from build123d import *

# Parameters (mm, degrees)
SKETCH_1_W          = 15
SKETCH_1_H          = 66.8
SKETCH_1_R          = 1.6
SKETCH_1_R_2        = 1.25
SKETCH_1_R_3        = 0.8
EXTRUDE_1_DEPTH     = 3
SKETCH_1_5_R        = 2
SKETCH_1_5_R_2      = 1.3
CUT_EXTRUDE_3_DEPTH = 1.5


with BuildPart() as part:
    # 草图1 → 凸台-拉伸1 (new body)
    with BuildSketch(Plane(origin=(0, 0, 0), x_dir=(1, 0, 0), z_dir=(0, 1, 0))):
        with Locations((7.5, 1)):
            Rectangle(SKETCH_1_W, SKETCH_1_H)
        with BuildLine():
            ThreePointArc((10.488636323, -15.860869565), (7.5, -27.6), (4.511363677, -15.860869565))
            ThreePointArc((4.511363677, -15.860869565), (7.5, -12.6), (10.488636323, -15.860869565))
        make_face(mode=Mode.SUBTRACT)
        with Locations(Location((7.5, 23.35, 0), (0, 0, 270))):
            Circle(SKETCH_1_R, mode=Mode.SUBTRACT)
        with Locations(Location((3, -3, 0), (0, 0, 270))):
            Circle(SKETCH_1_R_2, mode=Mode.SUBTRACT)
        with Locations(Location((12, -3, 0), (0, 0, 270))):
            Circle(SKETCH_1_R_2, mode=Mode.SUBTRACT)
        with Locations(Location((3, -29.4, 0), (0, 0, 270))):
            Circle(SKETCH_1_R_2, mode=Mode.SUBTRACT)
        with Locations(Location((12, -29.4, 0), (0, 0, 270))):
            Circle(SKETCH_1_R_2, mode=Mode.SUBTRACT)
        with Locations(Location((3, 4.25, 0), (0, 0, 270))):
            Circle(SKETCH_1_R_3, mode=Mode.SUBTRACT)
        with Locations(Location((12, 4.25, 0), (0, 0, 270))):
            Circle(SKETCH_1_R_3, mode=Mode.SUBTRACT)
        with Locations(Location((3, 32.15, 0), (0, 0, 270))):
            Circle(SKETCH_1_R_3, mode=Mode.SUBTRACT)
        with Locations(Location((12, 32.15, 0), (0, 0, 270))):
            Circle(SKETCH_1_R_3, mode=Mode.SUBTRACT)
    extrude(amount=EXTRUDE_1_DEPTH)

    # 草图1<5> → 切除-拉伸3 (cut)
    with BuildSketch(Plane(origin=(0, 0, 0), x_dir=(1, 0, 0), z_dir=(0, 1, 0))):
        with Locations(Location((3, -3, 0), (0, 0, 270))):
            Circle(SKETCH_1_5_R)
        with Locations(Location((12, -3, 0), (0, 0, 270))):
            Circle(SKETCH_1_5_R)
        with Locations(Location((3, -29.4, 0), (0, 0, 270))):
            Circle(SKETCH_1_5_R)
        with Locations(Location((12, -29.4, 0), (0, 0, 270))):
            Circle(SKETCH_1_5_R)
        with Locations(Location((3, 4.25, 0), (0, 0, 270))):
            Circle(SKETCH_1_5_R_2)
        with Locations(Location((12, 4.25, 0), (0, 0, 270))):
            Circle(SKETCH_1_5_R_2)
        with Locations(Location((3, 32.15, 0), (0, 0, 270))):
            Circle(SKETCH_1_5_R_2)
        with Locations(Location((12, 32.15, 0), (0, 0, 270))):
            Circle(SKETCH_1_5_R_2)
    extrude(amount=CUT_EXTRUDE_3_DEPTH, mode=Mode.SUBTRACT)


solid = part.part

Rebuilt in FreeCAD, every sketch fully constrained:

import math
import FreeCAD as App
import Part
import Sketcher

V = App.Vector

doc = App.newDocument("Part")
params = doc.addObject("Spreadsheet::Sheet", "Params")
for row, (alias, value) in enumerate([
    ("sketch1_radius", "3 mm"),
    ("sketch1_diameter", "2.5 mm"),
    ("sketch1_diameter2", "1.6 mm"),
    ("sketch1_diameter3", "3.2 mm"),
    ("sketch1_width", "15 mm"),
    ("pad1_length", "3 mm"),
    ("sketch2_diameter", "4 mm"),
    ("sketch2_diameter2", "2.6 mm"),
    ("pocket1_length", "1.5 mm"),
], start=1):
    params.set(f"A{row}", alias)
    params.set(f"B{row}", "=" + value)
    params.setAlias(f"B{row}", alias)

body = doc.addObject("PartDesign::Body", "Body")

# Sketch on XZ plane
sketch1 = body.newObject("Sketcher::SketchObject", "Sketch")
sketch1.AttachmentSupport = (doc.getObject("XZ_Plane"), [""])
sketch1.MapMode = "FlatFace"
sketch1.addGeometry(Part.LineSegment(V(0, -34.4, 0), V(0, 32.4, 0)), False)
sketch1.addGeometry(Part.LineSegment(V(0, 32.4, 0), V(15, 32.4, 0)), False)
sketch1.addGeometry(Part.LineSegment(V(15, 32.4, 0), V(15, -34.4, 0)), False)
sketch1.addGeometry(Part.LineSegment(V(15, -34.4, 0), V(0, -34.4, 0)), False)
sketch1.addGeometry(Part.Circle(V(3, 29.4, 0), V(0, 0, 1), 1.2), False)
sketch1.addGeometry(Part.Circle(V(3, 3, 0), V(0, 0, 1), 1.2), False)
sketch1.addGeometry(Part.ArcOfCircle(Part.Circle(V(7.5, 15.6, 0), V(0, 0, 1), 3), math.radians(175), math.radians(365)), False)
sketch1.addGeometry(Part.ArcOfCircle(Part.Circle(V(7.5, 21.4, 0), V(0, 0, 1), 6.2), math.radians(-61), math.radians(241)), False)
sketch1.addGeometry(Part.Circle(V(12, 29.4, 0), V(0, 0, 1), 1.2), False)
sketch1.addGeometry(Part.Circle(V(12, 3, 0), V(0, 0, 1), 1.2), False)
sketch1.addGeometry(Part.Circle(V(3, -4.2, 0), V(0, 0, 1), 0.8), False)
sketch1.addGeometry(Part.Circle(V(3, -32.1, 0), V(0, 0, 1), 0.8), False)
sketch1.addGeometry(Part.Circle(V(12, -4.2, 0), V(0, 0, 1), 0.8), False)
sketch1.addGeometry(Part.Circle(V(7.5, -23.4, 0), V(0, 0, 1), 1.6), False)
sketch1.addGeometry(Part.Circle(V(12, -32.1, 0), V(0, 0, 1), 0.8), False)
sketch1.addConstraint(Sketcher.Constraint("Coincident", 0, 2, 1, 1))
sketch1.addConstraint(Sketcher.Constraint("Coincident", 1, 2, 2, 1))
sketch1.addConstraint(Sketcher.Constraint("Coincident", 2, 2, 3, 1))
sketch1.addConstraint(Sketcher.Constraint("Coincident", 3, 2, 0, 1))
sketch1.addConstraint(Sketcher.Constraint("Coincident", 6, 1, 7, 2))
sketch1.addConstraint(Sketcher.Constraint("Coincident", 7, 1, 6, 2))
sketch1.addConstraint(Sketcher.Constraint("Vertical", 0))
sketch1.addConstraint(Sketcher.Constraint("Horizontal", 1))
sketch1.addConstraint(Sketcher.Constraint("Vertical", 2))
sketch1.addConstraint(Sketcher.Constraint("Horizontal", 3))
sketch1.addConstraint(Sketcher.Constraint("Equal", 4, 5))
sketch1.addConstraint(Sketcher.Constraint("Equal", 5, 8))
sketch1.addConstraint(Sketcher.Constraint("Equal", 8, 9))
sketch1.addConstraint(Sketcher.Constraint("Equal", 10, 11))
sketch1.addConstraint(Sketcher.Constraint("Equal", 11, 12))
sketch1.addConstraint(Sketcher.Constraint("Equal", 12, 14))
sketch1.addConstraint(Sketcher.Constraint("PointOnObject", 0, 2, -2))
sketch1.addConstraint(Sketcher.Constraint("Horizontal", 4, 3, 8, 3))
sketch1.addConstraint(Sketcher.Constraint("Horizontal", 5, 3, 9, 3))
sketch1.addConstraint(Sketcher.Constraint("Horizontal", 10, 3, 12, 3))
sketch1.addConstraint(Sketcher.Constraint("Horizontal", 11, 3, 14, 3))
sketch1.addConstraint(Sketcher.Constraint("Horizontal", 6, 1, 7, 1))
sketch1.addConstraint(Sketcher.Constraint("Vertical", 4, 3, 5, 3))
sketch1.addConstraint(Sketcher.Constraint("Vertical", 8, 3, 9, 3))
sketch1.addConstraint(Sketcher.Constraint("Vertical", 5, 3, 10, 3))
sketch1.addConstraint(Sketcher.Constraint("Vertical", 10, 3, 11, 3))
sketch1.addConstraint(Sketcher.Constraint("Vertical", 9, 3, 12, 3))
sketch1.addConstraint(Sketcher.Constraint("Vertical", 7, 3, 13, 3))
sketch1.addConstraint(Sketcher.Constraint("Vertical", 12, 3, 14, 3))
sketch1.addConstraint(Sketcher.Constraint("Radius", 6, 3.0))
sketch1.addConstraint(Sketcher.Constraint("Diameter", 4, 2.5))
sketch1.addConstraint(Sketcher.Constraint("Diameter", 10, 1.6))
sketch1.addConstraint(Sketcher.Constraint("Diameter", 13, 3.2))
sketch1.addConstraint(Sketcher.Constraint("DistanceX", 1, 1, 1, 2, 15.0))
sketch1.addConstraint(Sketcher.Constraint("Radius", 7, 6.25))
sketch1.addConstraint(Sketcher.Constraint("DistanceY", 0, 1, 0, 2, 66.8))
sketch1.addConstraint(Sketcher.Constraint("DistanceX", -1, 1, 4, 3, 3.0))
sketch1.addConstraint(Sketcher.Constraint("DistanceY", -1, 1, 5, 3, 3.0))
sketch1.addConstraint(Sketcher.Constraint("DistanceX", -1, 1, 8, 3, 12.0))
sketch1.addConstraint(Sketcher.Constraint("DistanceY", 4, 3, 0, 2, 3.0))
sketch1.addConstraint(Sketcher.Constraint("DistanceY", -1, 1, 4, 3, 29.4))
sketch1.addConstraint(Sketcher.Constraint("DistanceX", -1, 1, 6, 3, 7.5))
sketch1.addConstraint(Sketcher.Constraint("DistanceY", -1, 1, 6, 3, 15.6))
sketch1.addConstraint(Sketcher.Constraint("DistanceY", 10, 3, 7, 3, 25.6))
sketch1.addConstraint(Sketcher.Constraint("DistanceY", 11, 3, 10, 3, 27.9))
sketch1.addConstraint(Sketcher.Constraint("DistanceY", 11, 3, 13, 3, 8.8))
sketch1.addConstraint(Sketcher.Constraint("DistanceY", -1, 1, 7, 3, 21.35))
sketch1.setExpression("Constraints[29]", "Params.sketch1_radius")
sketch1.setExpression("Constraints[30]", "Params.sketch1_diameter")
sketch1.setExpression("Constraints[31]", "Params.sketch1_diameter2")
sketch1.setExpression("Constraints[32]", "Params.sketch1_diameter3")
sketch1.setExpression("Constraints[33]", "Params.sketch1_width")
pad1 = body.newObject("PartDesign::Pad", "Pad")
pad1.Profile = sketch1
pad1.setExpression("Length", "Params.pad1_length")
pad1.Reversed = True

# Sketch on XZ plane
sketch2 = body.newObject("Sketcher::SketchObject", "Sketch001")
sketch2.AttachmentSupport = (doc.getObject("XZ_Plane"), [""])
sketch2.MapMode = "FlatFace"
sketch2.addGeometry(Part.Circle(V(3, 3, 0), V(0, 0, 1), 2), False)
sketch2.addGeometry(Part.Circle(V(12, 3, 0), V(0, 0, 1), 2), False)
sketch2.addGeometry(Part.Circle(V(3, 29.4, 0), V(0, 0, 1), 2), False)
sketch2.addGeometry(Part.Circle(V(12, 29.4, 0), V(0, 0, 1), 2), False)
sketch2.addGeometry(Part.Circle(V(3, -4.2, 0), V(0, 0, 1), 1.3), False)
sketch2.addGeometry(Part.Circle(V(12, -4.2, 0), V(0, 0, 1), 1.3), False)
sketch2.addGeometry(Part.Circle(V(3, -32.1, 0), V(0, 0, 1), 1.3), False)
sketch2.addGeometry(Part.Circle(V(12, -32.1, 0), V(0, 0, 1), 1.3), False)
sketch2.addConstraint(Sketcher.Constraint("Equal", 0, 1))
sketch2.addConstraint(Sketcher.Constraint("Equal", 1, 2))
sketch2.addConstraint(Sketcher.Constraint("Equal", 2, 3))
sketch2.addConstraint(Sketcher.Constraint("Equal", 4, 5))
sketch2.addConstraint(Sketcher.Constraint("Equal", 5, 6))
sketch2.addConstraint(Sketcher.Constraint("Equal", 6, 7))
sketch2.addConstraint(Sketcher.Constraint("Horizontal", 0, 3, 1, 3))
sketch2.addConstraint(Sketcher.Constraint("Horizontal", 2, 3, 3, 3))
sketch2.addConstraint(Sketcher.Constraint("Horizontal", 4, 3, 5, 3))
sketch2.addConstraint(Sketcher.Constraint("Horizontal", 6, 3, 7, 3))
sketch2.addConstraint(Sketcher.Constraint("Vertical", 0, 3, 2, 3))
sketch2.addConstraint(Sketcher.Constraint("Vertical", 1, 3, 3, 3))
sketch2.addConstraint(Sketcher.Constraint("Vertical", 2, 3, 4, 3))
sketch2.addConstraint(Sketcher.Constraint("Vertical", 3, 3, 5, 3))
sketch2.addConstraint(Sketcher.Constraint("Vertical", 4, 3, 6, 3))
sketch2.addConstraint(Sketcher.Constraint("Vertical", 5, 3, 7, 3))
sketch2.addConstraint(Sketcher.Constraint("Diameter", 0, 4.0))
sketch2.addConstraint(Sketcher.Constraint("Diameter", 4, 2.6))
sketch2.addConstraint(Sketcher.Constraint("DistanceX", -1, 1, 0, 3, 3.0))
sketch2.addConstraint(Sketcher.Constraint("DistanceY", -1, 1, 0, 3, 3.0))
sketch2.addConstraint(Sketcher.Constraint("DistanceX", -1, 1, 1, 3, 12.0))
sketch2.addConstraint(Sketcher.Constraint("DistanceY", -1, 1, 2, 3, 29.4))
sketch2.addConstraint(Sketcher.Constraint("DistanceY", 6, 3, 4, 3, 27.9))
sketch2.addConstraint(Sketcher.Constraint("DistanceY", 4, 3, -1, 1, 4.25))
sketch2.setExpression("Constraints[16]", "Params.sketch2_diameter")
sketch2.setExpression("Constraints[17]", "Params.sketch2_diameter2")
pocket1 = body.newObject("PartDesign::Pocket", "Pocket")
pocket1.Profile = sketch2
pocket1.setExpression("Length", "Params.pocket1_length")

doc.recompute()
